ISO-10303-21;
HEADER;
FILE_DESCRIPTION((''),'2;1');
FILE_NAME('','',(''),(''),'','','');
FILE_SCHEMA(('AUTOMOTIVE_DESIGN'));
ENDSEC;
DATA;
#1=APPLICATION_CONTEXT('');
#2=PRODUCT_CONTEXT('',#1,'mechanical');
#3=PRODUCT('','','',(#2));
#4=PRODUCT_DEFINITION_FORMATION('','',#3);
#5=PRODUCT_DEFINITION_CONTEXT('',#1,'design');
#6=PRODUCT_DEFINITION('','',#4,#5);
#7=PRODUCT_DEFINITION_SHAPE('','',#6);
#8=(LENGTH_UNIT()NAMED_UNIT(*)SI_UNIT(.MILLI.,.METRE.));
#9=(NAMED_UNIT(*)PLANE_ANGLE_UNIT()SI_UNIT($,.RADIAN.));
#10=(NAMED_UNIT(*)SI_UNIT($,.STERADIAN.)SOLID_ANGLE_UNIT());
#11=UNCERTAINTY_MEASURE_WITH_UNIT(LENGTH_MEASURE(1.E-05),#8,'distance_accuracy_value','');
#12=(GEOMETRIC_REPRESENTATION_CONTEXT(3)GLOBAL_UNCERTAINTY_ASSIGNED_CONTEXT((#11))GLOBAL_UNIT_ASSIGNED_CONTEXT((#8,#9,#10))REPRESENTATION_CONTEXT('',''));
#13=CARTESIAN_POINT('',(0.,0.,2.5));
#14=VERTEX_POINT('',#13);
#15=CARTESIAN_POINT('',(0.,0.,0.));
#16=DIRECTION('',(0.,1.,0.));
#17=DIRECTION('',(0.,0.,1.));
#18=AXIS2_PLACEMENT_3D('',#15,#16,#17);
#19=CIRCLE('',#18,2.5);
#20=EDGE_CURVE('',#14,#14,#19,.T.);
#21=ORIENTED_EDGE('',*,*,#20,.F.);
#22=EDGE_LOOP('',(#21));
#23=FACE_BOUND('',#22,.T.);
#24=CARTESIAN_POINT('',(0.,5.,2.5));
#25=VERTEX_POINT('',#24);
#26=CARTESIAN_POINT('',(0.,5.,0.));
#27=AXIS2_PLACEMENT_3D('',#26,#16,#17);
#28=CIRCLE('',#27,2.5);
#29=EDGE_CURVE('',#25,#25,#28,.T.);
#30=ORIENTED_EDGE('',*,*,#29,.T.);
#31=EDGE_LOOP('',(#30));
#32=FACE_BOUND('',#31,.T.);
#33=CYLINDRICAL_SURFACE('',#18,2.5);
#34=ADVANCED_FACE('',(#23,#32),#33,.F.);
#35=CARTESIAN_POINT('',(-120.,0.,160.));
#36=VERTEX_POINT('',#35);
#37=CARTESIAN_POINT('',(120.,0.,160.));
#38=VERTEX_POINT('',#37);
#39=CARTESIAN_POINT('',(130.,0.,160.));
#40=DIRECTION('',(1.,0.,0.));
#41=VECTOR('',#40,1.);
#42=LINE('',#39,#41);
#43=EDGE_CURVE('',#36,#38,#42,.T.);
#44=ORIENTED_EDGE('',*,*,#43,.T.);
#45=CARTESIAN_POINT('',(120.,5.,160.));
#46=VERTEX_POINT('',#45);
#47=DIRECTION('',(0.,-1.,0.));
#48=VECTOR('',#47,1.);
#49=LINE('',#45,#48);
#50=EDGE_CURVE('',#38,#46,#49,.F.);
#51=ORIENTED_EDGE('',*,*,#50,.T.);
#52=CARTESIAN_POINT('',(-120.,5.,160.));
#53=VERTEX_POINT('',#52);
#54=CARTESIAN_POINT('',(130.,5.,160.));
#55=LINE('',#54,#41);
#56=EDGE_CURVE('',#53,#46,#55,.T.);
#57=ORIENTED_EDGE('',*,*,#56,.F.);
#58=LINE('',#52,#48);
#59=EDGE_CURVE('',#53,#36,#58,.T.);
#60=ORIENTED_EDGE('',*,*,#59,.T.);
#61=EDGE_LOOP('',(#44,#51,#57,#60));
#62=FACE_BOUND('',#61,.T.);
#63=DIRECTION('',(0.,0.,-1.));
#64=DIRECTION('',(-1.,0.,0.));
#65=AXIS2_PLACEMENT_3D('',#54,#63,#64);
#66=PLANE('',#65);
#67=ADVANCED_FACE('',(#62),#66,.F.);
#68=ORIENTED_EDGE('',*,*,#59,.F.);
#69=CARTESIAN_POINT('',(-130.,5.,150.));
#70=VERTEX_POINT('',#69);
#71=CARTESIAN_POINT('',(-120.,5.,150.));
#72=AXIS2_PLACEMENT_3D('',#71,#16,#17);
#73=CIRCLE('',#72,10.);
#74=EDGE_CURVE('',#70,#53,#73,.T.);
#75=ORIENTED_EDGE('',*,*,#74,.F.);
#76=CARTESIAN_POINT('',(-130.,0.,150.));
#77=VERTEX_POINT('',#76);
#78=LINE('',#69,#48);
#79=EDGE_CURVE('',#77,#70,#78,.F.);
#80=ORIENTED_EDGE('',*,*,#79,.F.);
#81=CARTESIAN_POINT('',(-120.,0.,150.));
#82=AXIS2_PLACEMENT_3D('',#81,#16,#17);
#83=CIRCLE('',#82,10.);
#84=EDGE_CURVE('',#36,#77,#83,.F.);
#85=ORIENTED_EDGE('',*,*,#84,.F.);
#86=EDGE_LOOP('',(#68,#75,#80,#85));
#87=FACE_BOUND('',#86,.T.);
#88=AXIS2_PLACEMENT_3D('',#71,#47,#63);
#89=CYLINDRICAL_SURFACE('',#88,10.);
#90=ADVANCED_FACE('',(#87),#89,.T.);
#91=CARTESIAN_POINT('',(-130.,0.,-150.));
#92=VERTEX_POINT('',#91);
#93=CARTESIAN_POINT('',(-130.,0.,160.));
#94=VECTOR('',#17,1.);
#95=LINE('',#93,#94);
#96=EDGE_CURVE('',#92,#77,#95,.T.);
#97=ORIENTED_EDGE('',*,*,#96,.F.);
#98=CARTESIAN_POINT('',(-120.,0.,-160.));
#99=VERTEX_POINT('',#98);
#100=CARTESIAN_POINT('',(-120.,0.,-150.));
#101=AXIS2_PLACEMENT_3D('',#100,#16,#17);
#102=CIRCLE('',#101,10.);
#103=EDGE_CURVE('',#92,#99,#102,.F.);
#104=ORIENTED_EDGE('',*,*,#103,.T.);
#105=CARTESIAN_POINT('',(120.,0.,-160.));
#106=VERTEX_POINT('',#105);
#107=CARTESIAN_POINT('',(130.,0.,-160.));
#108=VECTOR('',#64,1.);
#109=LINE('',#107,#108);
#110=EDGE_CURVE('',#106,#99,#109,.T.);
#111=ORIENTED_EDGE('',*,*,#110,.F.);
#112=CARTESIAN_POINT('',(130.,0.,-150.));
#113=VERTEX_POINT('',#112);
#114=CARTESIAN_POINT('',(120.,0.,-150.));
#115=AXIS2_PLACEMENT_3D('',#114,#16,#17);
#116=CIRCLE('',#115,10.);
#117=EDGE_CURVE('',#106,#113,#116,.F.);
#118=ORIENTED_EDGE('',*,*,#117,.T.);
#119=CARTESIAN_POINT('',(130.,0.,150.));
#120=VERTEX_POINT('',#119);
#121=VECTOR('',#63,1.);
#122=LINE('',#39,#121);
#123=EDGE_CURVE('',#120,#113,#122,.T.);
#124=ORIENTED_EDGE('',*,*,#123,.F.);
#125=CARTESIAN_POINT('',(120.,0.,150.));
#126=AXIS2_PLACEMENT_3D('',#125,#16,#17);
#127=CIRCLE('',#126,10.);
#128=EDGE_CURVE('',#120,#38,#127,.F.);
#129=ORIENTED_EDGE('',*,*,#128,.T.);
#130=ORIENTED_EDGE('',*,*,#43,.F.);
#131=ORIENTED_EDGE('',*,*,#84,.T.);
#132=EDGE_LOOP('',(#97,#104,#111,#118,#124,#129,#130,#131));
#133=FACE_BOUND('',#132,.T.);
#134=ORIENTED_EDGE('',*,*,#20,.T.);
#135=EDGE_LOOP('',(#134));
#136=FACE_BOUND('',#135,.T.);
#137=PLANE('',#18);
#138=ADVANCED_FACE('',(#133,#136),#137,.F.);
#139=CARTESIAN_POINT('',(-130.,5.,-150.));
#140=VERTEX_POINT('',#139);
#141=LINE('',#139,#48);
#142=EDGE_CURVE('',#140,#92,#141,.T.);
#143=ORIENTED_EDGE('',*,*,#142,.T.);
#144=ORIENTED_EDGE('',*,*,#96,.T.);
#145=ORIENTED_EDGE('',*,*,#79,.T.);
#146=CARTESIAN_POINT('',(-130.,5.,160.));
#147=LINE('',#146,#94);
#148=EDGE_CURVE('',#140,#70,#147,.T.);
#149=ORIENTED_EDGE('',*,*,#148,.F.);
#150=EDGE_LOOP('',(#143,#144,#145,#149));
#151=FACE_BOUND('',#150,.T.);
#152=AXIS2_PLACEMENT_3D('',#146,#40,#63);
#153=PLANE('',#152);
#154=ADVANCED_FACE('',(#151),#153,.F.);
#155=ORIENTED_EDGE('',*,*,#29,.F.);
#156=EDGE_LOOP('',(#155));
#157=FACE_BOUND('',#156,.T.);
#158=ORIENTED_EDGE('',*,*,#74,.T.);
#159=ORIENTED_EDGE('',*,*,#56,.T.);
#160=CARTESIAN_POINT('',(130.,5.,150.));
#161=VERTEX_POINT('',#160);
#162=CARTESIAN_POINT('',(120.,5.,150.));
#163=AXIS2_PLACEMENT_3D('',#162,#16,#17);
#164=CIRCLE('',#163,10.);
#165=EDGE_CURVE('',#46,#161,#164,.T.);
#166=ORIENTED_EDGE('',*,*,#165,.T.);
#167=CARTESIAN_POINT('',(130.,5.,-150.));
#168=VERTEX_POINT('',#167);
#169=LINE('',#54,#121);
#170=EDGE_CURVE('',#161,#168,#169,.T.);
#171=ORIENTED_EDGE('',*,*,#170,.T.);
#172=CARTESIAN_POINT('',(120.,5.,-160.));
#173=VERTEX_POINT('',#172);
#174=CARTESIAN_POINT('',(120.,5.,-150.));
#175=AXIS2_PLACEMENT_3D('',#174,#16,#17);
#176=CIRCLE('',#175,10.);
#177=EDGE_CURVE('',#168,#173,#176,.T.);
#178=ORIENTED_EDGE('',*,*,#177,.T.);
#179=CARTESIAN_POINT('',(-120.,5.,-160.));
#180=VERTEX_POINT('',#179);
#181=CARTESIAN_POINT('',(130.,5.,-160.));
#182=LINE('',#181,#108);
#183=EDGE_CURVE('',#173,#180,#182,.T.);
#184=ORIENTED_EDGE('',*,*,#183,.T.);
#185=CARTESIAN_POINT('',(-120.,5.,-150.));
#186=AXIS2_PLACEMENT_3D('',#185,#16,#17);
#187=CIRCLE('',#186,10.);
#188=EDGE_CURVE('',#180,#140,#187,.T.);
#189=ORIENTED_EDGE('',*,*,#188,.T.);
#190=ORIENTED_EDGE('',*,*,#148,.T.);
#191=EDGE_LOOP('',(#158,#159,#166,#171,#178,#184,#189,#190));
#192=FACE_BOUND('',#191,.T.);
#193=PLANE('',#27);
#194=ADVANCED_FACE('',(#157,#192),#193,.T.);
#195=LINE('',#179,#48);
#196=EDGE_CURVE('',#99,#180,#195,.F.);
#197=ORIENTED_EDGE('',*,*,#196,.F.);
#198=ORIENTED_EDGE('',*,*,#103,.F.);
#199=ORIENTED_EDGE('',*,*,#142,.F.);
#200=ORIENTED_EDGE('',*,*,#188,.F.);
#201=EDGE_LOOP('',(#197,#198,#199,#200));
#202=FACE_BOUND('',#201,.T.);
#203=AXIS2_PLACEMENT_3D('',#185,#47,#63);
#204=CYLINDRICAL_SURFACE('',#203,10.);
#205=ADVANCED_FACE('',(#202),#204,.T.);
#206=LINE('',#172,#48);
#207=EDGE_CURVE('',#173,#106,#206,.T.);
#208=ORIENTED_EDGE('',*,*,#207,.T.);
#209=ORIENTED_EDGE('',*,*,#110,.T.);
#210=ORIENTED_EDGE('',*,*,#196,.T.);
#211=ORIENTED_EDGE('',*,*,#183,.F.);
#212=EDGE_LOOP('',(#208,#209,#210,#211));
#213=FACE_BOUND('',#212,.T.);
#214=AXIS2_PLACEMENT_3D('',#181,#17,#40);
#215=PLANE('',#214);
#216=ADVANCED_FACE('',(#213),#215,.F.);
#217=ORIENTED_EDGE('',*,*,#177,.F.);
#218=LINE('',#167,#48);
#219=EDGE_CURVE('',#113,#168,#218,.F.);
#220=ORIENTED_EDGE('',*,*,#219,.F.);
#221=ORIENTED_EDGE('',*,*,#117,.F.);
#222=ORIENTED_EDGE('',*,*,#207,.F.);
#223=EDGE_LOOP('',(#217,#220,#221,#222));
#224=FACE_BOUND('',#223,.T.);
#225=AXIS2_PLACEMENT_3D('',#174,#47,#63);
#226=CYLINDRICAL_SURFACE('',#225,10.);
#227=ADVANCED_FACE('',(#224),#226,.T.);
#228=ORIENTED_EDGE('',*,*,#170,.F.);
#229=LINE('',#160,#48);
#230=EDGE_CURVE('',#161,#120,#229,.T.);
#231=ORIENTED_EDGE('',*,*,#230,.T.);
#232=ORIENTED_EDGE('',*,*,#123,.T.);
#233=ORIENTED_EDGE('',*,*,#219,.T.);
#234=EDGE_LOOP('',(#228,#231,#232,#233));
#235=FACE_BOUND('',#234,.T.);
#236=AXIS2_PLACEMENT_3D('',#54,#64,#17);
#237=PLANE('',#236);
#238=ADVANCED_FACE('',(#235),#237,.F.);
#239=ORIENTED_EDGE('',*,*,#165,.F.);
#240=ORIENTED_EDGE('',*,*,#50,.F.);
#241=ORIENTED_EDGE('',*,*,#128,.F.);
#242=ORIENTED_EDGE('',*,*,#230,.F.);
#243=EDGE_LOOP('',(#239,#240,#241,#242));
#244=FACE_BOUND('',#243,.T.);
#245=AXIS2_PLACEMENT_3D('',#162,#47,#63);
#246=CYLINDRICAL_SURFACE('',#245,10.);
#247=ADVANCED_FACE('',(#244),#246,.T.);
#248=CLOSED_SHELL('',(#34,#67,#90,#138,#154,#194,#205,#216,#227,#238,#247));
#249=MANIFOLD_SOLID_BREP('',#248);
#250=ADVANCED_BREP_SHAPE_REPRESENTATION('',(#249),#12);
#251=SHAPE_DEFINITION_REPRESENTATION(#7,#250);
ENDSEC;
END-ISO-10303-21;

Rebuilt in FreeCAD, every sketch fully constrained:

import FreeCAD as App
import Part
import Sketcher
from FreeCAD import Vector


def edges_at(feature, points):
    """Names of the edges that pass closest to the given points."""
    edges = feature.Shape.Edges
    near = lambda p: min(range(len(edges)), key=lambda i: edges[i].distToShape(Part.Vertex(*p))[0])
    return sorted({f"Edge{near(p) + 1}" for p in points})

doc = App.newDocument("Part")
body = doc.addObject("PartDesign::Body", "Body")

sketch1 = body.newObject("Sketcher::SketchObject", "Sketch")
sketch1.AttachmentSupport = (doc.getObject("XZ_Plane"), [""])
sketch1.MapMode = "FlatFace"
sketch1.addGeometry(Part.LineSegment(Vector(-130, -160, 0), Vector(-130, 160, 0)), False)
sketch1.addGeometry(Part.LineSegment(Vector(-130, 160, 0), Vector(130, 160, 0)), False)
sketch1.addGeometry(Part.LineSegment(Vector(130, 160, 0), Vector(130, -160, 0)), False)
sketch1.addGeometry(Part.LineSegment(Vector(130, -160, 0), Vector(-130, -160, 0)), False)
sketch1.addConstraint(Sketcher.Constraint("Coincident", 0, 2, 1, 1))
sketch1.addConstraint(Sketcher.Constraint("Coincident", 1, 2, 2, 1))
sketch1.addConstraint(Sketcher.Constraint("Coincident", 2, 2, 3, 1))
sketch1.addConstraint(Sketcher.Constraint("Coincident", 3, 2, 0, 1))
sketch1.addConstraint(Sketcher.Constraint("Vertical", 0))
sketch1.addConstraint(Sketcher.Constraint("Horizontal", 1))
sketch1.addConstraint(Sketcher.Constraint("Vertical", 2))
sketch1.addConstraint(Sketcher.Constraint("Horizontal", 3))
sketch1.addConstraint(Sketcher.Constraint("Symmetric", 0, 2, 2, 2, -1, 1))
sketch1.addConstraint(Sketcher.Constraint("DistanceX", 1, 1, 1, 2, 260.0))
sketch1.addConstraint(Sketcher.Constraint("DistanceY", 0, 1, 0, 2, 320.0))
pad1 = body.newObject("PartDesign::Pad", "Pad")
pad1.Profile = sketch1
pad1.Length = 5
pad1.Reversed = True
doc.recompute()

fillet = body.newObject("PartDesign::Fillet", "Fillet")
fillet.Base = (pad1, edges_at(pad1, [
    (-130, 2.5, -160),
    (130, 2.5, -160),
    (130, 2.5, 160),
    (-130, 2.5, 160),
]))
fillet.Radius = 10

sketch2 = body.newObject("Sketcher::SketchObject", "Sketch001")
sketch2.AttachmentSupport = (doc.getObject("XZ_Plane"), [""])
sketch2.MapMode = "FlatFace"
sketch2.AttachmentOffset = App.Placement(Vector(0, 0, -5), App.Rotation())
sketch2.addGeometry(Part.Circle(Vector(0, 0, 0), Vector(0, 0, 1), 2.5), False)
sketch2.addConstraint(Sketcher.Constraint("Coincident", 0, 3, -1, 1))
sketch2.addConstraint(Sketcher.Constraint("Diameter", 0, 5.0))
pocket1 = body.newObject("PartDesign::Pocket", "Pocket")
pocket1.Profile = sketch2
pocket1.Type = "ThroughAll"
pocket1.Reversed = True

doc.recompute()
